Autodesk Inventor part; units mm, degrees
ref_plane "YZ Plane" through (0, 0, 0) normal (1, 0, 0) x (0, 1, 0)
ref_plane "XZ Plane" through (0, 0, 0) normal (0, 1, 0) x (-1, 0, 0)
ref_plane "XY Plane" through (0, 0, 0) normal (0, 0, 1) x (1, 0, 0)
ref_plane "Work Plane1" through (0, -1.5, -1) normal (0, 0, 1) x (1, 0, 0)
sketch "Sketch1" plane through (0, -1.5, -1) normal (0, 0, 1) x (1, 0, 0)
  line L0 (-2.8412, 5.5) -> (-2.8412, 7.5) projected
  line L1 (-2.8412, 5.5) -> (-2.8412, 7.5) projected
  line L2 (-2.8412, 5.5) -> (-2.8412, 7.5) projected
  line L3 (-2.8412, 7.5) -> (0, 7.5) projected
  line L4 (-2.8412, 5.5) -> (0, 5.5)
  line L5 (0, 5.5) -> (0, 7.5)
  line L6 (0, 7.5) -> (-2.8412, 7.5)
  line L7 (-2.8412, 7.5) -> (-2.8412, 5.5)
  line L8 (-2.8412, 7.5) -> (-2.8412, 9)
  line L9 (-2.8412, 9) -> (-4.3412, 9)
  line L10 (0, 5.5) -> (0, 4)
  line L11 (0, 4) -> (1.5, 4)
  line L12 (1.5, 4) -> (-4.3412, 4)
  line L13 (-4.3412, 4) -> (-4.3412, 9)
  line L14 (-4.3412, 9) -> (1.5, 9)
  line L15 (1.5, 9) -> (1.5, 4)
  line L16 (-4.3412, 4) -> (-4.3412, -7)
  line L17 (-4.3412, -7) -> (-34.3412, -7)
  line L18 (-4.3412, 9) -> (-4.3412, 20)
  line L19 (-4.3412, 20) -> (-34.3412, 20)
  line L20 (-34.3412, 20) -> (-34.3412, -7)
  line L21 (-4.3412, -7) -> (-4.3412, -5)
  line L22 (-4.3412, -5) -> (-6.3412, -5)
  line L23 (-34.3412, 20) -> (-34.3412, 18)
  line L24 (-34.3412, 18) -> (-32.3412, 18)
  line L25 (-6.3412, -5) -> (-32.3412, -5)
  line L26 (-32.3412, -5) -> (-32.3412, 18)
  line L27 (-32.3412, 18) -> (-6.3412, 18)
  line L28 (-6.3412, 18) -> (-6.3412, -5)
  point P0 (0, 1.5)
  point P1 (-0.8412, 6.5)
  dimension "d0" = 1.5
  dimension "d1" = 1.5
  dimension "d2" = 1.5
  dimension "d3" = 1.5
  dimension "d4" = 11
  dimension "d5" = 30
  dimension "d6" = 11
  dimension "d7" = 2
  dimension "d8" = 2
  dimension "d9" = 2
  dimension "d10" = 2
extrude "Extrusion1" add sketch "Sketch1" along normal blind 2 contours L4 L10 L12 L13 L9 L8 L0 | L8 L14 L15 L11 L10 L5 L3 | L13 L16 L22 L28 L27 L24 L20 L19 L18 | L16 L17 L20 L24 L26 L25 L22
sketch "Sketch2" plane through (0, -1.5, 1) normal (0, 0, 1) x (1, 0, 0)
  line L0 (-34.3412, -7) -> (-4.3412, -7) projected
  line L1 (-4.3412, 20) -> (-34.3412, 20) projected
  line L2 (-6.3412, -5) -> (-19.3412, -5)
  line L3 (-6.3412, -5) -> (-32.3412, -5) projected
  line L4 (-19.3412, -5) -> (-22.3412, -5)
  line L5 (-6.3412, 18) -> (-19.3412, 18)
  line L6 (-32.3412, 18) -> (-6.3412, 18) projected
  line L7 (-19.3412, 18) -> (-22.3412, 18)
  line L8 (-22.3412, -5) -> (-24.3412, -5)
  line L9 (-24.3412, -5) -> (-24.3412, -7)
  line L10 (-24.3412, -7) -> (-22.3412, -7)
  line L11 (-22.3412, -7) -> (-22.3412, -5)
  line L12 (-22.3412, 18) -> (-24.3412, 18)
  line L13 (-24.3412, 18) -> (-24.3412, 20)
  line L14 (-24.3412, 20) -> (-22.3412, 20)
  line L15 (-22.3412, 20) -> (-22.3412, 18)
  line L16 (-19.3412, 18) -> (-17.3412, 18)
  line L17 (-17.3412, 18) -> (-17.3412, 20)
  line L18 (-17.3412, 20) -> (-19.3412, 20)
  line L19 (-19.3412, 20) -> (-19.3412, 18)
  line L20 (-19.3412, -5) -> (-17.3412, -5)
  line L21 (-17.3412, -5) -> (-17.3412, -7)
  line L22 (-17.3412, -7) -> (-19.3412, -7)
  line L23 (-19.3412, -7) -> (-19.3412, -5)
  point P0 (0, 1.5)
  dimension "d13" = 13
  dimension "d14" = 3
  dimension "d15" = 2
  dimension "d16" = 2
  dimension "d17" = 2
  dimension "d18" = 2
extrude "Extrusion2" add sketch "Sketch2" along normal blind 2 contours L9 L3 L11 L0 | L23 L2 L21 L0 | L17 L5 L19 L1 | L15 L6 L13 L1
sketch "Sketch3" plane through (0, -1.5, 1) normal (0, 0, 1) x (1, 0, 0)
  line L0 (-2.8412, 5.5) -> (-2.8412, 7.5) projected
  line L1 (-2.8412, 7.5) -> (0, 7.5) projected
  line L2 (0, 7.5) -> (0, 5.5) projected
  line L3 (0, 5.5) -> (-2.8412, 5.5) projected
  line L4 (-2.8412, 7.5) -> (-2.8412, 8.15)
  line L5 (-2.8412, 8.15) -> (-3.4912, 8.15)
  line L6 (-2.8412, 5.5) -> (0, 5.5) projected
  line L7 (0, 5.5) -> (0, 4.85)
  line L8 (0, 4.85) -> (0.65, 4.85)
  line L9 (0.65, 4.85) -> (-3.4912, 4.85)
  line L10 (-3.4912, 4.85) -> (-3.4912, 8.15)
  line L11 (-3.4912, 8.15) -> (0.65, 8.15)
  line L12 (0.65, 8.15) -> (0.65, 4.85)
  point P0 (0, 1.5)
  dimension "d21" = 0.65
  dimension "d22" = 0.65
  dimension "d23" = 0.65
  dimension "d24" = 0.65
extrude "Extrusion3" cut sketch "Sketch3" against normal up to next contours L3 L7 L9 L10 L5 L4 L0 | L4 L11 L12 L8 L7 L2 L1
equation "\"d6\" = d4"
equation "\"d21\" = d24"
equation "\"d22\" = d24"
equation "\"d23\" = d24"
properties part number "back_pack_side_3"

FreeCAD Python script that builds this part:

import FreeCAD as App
import Part
import Sketcher


def add_polygon(sketch, points):
    """Adds a closed chain of lines whose ends are joined by coincident constraints."""
    first, n = sketch.GeometryCount, len(points)
    for a, b in zip(points, points[1:] + points[:1]):
        sketch.addGeometry(Part.LineSegment(App.Vector(*a, 0), App.Vector(*b, 0)), False)
    for i in range(n):
        sketch.addConstraint(Sketcher.Constraint("Coincident", first + i, 2, first + (i + 1) % n, 1))

doc = App.newDocument("Part")
body = doc.addObject("PartDesign::Body", "Body")

# Sketch on XY plane
sketch1 = doc.addObject("Sketcher::SketchObject", "Sketch")
body.addObject(sketch1)
sketch1.AttachmentSupport = (doc.XY_Plane, [""])
sketch1.MapMode = "FlatFace"
sketch1.AttachmentOffset = App.Placement(App.Vector(0, 0, -1), App.Rotation())
add_polygon(sketch1, [(-4.3412, 2.5), (1.5, 2.5), (1.5, 7.5), (-4.3412, 7.5), (-4.3412, 18.5), (-34.3412, 18.5), (-34.3412, -8.5), (-4.3412, -8.5)])  # lines 0-7
add_polygon(sketch1, [(0, 4), (-2.8412, 4), (-2.8412, 6), (0, 6)])  # lines 8-11
add_polygon(sketch1, [(-6.3412, 16.5), (-6.3412, -6.5), (-32.3412, -6.5), (-32.3412, 16.5)])  # lines 12-15
sketch1.addConstraint([
    Sketcher.Constraint("Horizontal", 0),
    Sketcher.Constraint("Vertical", 1),
    Sketcher.Constraint("Horizontal", 2),
    Sketcher.Constraint("Vertical", 3),
    Sketcher.Constraint("Horizontal", 4),
    Sketcher.Constraint("Vertical", 5),
    Sketcher.Constraint("Horizontal", 6),
    Sketcher.Constraint("Vertical", 7),
    Sketcher.Constraint("Horizontal", 8),
    Sketcher.Constraint("Vertical", 9),
    Sketcher.Constraint("Horizontal", 10),
    Sketcher.Constraint("Vertical", 11),
    Sketcher.Constraint("Vertical", 12),
    Sketcher.Constraint("Horizontal", 13),
    Sketcher.Constraint("Vertical", 14),
    Sketcher.Constraint("Horizontal", 15),
    Sketcher.Constraint("PointOnObject", 10, 2, -2),
    Sketcher.Constraint("Vertical", 3, 2, 6, 2),
    Sketcher.Constraint("Equal", 3, 7),
    Sketcher.Constraint("DistanceX", 4, 2, 4, 1, 30.0),
    Sketcher.Constraint("DistanceY", 3, 1, 3, 2, 11.0),
    Sketcher.Constraint("DistanceY", 9, 1, 9, 2, 2.0),
    Sketcher.Constraint("DistanceX", 12, 2, 6, 2, 2.0),
    Sketcher.Constraint("DistanceY", 6, 2, 12, 2, 2.0),
    Sketcher.Constraint("DistanceX", 5, 2, 13, 2, 2.0),
    Sketcher.Constraint("DistanceY", 14, 2, 4, 2, 2.0),
    Sketcher.Constraint("DistanceX", -1, 1, 0, 2, 1.5),
    Sketcher.Constraint("DistanceX", 7, 2, 8, 2, 1.5),
    Sketcher.Constraint("DistanceY", 7, 2, 8, 2, 1.5),
    Sketcher.Constraint("DistanceY", 9, 2, 2, 2, 1.5),
    Sketcher.Constraint("DistanceY", -1, 1, 8, 2, 4.0),
    Sketcher.Constraint("DistanceX", 0, 1, 0, 2, 5.8412),
])
pad1 = doc.addObject("PartDesign::Pad", "Pad")
body.addObject(pad1)
pad1.Profile = sketch1
pad1.Length = 2

# Sketch on XY plane
sketch2 = doc.addObject("Sketcher::SketchObject", "Sketch001")
body.addObject(sketch2)
sketch2.AttachmentSupport = (doc.XY_Plane, [""])
sketch2.MapMode = "FlatFace"
sketch2.AttachmentOffset = App.Placement(App.Vector(0, 0, 1), App.Rotation())
add_polygon(sketch2, [(-24.3412, -6.5), (-24.3412, -8.5), (-22.3412, -8.5), (-22.3412, -6.5)])  # lines 0-3
add_polygon(sketch2, [(-19.3412, -6.5), (-19.3412, -8.5), (-17.3412, -8.5), (-17.3412, -6.5)])  # lines 4-7
add_polygon(sketch2, [(-17.3412, 16.5), (-17.3412, 18.5), (-19.3412, 18.5), (-19.3412, 16.5)])  # lines 8-11
add_polygon(sketch2, [(-22.3412, 16.5), (-22.3412, 18.5), (-24.3412, 18.5), (-24.3412, 16.5)])  # lines 12-15
sketch2.addConstraint([
    Sketcher.Constraint("Vertical", 0),
    Sketcher.Constraint("Horizontal", 1),
    Sketcher.Constraint("Vertical", 2),
    Sketcher.Constraint("Horizontal", 3),
    Sketcher.Constraint("Vertical", 4),
    Sketcher.Constraint("Horizontal", 5),
    Sketcher.Constraint("Vertical", 6),
    Sketcher.Constraint("Horizontal", 7),
    Sketcher.Constraint("Vertical", 8),
    Sketcher.Constraint("Horizontal", 9),
    Sketcher.Constraint("Vertical", 10),
    Sketcher.Constraint("Horizontal", 11),
    Sketcher.Constraint("Vertical", 12),
    Sketcher.Constraint("Horizontal", 13),
    Sketcher.Constraint("Vertical", 14),
    Sketcher.Constraint("Horizontal", 15),
    Sketcher.Constraint("Horizontal", 1, 2, 4, 2),
    Sketcher.Constraint("Horizontal", 3, 2, 6, 2),
    Sketcher.Constraint("Horizontal", 9, 2, 12, 2),
    Sketcher.Constraint("Horizontal", 11, 2, 14, 2),
    Sketcher.Constraint("Vertical", 6, 2, 8, 2),
    Sketcher.Constraint("Vertical", 7, 2, 9, 2),
    Sketcher.Constraint("Vertical", 2, 2, 12, 2),
    Sketcher.Constraint("Vertical", 3, 2, 13, 2),
    Sketcher.Constraint("Equal", 3, 5),
    Sketcher.Constraint("Equal", 15, 0),
    Sketcher.Constraint("Equal", 6, 8),
    Sketcher.Constraint("DistanceX", 1, 1, 1, 2, 2.0),
    Sketcher.Constraint("DistanceX", 1, 2, 4, 2, 3.0),
    Sketcher.Constraint("DistanceY", 6, 2, 8, 2, 25.0),
    Sketcher.Constraint("DistanceY", 0, 2, -1, 1, 8.5),
    Sketcher.Constraint("DistanceX", 0, 2, -1, 1, 24.3412),
])
pad2 = doc.addObject("PartDesign::Pad", "Pad001")
body.addObject(pad2)
pad2.Profile = sketch2
pad2.Length = 2

# Sketch on XY plane
sketch3 = doc.addObject("Sketcher::SketchObject", "Sketch002")
body.addObject(sketch3)
sketch3.AttachmentSupport = (doc.XY_Plane, [""])
sketch3.MapMode = "FlatFace"
sketch3.AttachmentOffset = App.Placement(App.Vector(0, 0, 1), App.Rotation())
add_polygon(sketch3, [(-3.4912, 3.35), (0.65, 3.35), (0.65, 6.65), (-3.4912, 6.65)])  # lines 0-3
add_polygon(sketch3, [(0, 4), (-2.8412, 4), (-2.8412, 6), (0, 6)])  # lines 4-7
sketch3.addConstraint([
    Sketcher.Constraint("Horizontal", 0),
    Sketcher.Constraint("Vertical", 1),
    Sketcher.Constraint("Horizontal", 2),
    Sketcher.Constraint("Vertical", 3),
    Sketcher.Constraint("Horizontal", 4),
    Sketcher.Constraint("Vertical", 5),
    Sketcher.Constraint("Horizontal", 6),
    Sketcher.Constraint("Vertical", 7),
    Sketcher.Constraint("PointOnObject", 6, 2, -2),
    Sketcher.Constraint("DistanceY", 5, 1, 5, 2, 2.0),
    Sketcher.Constraint("DistanceX", -1, 1, 0, 2, 0.65),
    Sketcher.Constraint("DistanceX", 3, 2, 4, 2, 0.65),
    Sketcher.Constraint("DistanceY", 3, 2, 4, 2, 0.65),
    Sketcher.Constraint("DistanceY", 5, 2, 2, 2, 0.65),
    Sketcher.Constraint("DistanceY", -1, 1, 4, 2, 4.0),
    Sketcher.Constraint("DistanceX", 0, 1, 0, 2, 4.1412),
])
pocket1 = doc.addObject("PartDesign::Pocket", "Pocket")
body.addObject(pocket1)
pocket1.Profile = sketch3
pocket1.Length = 2

doc.recompute()
